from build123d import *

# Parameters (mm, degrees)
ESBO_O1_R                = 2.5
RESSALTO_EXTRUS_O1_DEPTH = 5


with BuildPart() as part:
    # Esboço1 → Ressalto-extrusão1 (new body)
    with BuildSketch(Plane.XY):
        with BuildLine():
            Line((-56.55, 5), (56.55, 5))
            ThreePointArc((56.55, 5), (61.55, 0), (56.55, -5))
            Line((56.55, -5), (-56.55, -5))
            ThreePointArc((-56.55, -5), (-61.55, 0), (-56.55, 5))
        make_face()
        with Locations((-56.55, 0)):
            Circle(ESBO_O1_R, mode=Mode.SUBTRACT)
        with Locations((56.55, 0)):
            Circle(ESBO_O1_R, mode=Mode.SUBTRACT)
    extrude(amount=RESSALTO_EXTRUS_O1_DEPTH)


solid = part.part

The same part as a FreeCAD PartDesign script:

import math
import FreeCAD as App
import Part
import Sketcher
from FreeCAD import Vector

doc = App.newDocument("Part")
body = doc.addObject("PartDesign::Body", "Body")

sketch1 = body.newObject("Sketcher::SketchObject", "Sketch")
sketch1.AttachmentSupport = (doc.getObject("XY_Plane"), [""])
sketch1.MapMode = "FlatFace"
sketch1.addGeometry(Part.LineSegment(Vector(56.55, 5, 0), Vector(-56.55, 5, 0)), False)
sketch1.addGeometry(Part.ArcOfCircle(Part.Circle(Vector(-56.55, 0, 0), Vector(0, 0, 1), 5), math.radians(90), math.radians(270)), False)
sketch1.addGeometry(Part.LineSegment(Vector(-56.55, -5, 0), Vector(56.55, -5, 0)), False)
sketch1.addGeometry(Part.ArcOfCircle(Part.Circle(Vector(56.55, 0, 0), Vector(0, 0, 1), 5), math.radians(-90), math.radians(90)), False)
sketch1.addGeometry(Part.Circle(Vector(56.55, 0, 0), Vector(0, 0, 1), 2.5), False)
sketch1.addGeometry(Part.Circle(Vector(-56.55, 0, 0), Vector(0, 0, 1), 2.5), False)
sketch1.addConstraint(Sketcher.Constraint("Tangent", 0, 2, 1, 1))
sketch1.addConstraint(Sketcher.Constraint("Tangent", 1, 2, 2, 1))
sketch1.addConstraint(Sketcher.Constraint("Tangent", 2, 2, 3, 1))
sketch1.addConstraint(Sketcher.Constraint("Tangent", 3, 2, 0, 1))
sketch1.addConstraint(Sketcher.Constraint("Horizontal", 0))
sketch1.addConstraint(Sketcher.Constraint("Horizontal", 2))
sketch1.addConstraint(Sketcher.Constraint("Coincident", 4, 3, 3, 3))
sketch1.addConstraint(Sketcher.Constraint("Coincident", 5, 3, 1, 3))
sketch1.addConstraint(Sketcher.Constraint("Equal", 4, 5))
sketch1.addConstraint(Sketcher.Constraint("Symmetric", 1, 3, 3, 3, -1, 1))
sketch1.addConstraint(Sketcher.Constraint("Diameter", 4, 5.0))
sketch1.addConstraint(Sketcher.Constraint("Radius", 1, 5.0))
sketch1.addConstraint(Sketcher.Constraint("DistanceX", 0, 2, 0, 1, 113.1))
pad1 = body.newObject("PartDesign::Pad", "Pad")
pad1.Profile = sketch1
pad1.Length = 5

doc.recompute()
